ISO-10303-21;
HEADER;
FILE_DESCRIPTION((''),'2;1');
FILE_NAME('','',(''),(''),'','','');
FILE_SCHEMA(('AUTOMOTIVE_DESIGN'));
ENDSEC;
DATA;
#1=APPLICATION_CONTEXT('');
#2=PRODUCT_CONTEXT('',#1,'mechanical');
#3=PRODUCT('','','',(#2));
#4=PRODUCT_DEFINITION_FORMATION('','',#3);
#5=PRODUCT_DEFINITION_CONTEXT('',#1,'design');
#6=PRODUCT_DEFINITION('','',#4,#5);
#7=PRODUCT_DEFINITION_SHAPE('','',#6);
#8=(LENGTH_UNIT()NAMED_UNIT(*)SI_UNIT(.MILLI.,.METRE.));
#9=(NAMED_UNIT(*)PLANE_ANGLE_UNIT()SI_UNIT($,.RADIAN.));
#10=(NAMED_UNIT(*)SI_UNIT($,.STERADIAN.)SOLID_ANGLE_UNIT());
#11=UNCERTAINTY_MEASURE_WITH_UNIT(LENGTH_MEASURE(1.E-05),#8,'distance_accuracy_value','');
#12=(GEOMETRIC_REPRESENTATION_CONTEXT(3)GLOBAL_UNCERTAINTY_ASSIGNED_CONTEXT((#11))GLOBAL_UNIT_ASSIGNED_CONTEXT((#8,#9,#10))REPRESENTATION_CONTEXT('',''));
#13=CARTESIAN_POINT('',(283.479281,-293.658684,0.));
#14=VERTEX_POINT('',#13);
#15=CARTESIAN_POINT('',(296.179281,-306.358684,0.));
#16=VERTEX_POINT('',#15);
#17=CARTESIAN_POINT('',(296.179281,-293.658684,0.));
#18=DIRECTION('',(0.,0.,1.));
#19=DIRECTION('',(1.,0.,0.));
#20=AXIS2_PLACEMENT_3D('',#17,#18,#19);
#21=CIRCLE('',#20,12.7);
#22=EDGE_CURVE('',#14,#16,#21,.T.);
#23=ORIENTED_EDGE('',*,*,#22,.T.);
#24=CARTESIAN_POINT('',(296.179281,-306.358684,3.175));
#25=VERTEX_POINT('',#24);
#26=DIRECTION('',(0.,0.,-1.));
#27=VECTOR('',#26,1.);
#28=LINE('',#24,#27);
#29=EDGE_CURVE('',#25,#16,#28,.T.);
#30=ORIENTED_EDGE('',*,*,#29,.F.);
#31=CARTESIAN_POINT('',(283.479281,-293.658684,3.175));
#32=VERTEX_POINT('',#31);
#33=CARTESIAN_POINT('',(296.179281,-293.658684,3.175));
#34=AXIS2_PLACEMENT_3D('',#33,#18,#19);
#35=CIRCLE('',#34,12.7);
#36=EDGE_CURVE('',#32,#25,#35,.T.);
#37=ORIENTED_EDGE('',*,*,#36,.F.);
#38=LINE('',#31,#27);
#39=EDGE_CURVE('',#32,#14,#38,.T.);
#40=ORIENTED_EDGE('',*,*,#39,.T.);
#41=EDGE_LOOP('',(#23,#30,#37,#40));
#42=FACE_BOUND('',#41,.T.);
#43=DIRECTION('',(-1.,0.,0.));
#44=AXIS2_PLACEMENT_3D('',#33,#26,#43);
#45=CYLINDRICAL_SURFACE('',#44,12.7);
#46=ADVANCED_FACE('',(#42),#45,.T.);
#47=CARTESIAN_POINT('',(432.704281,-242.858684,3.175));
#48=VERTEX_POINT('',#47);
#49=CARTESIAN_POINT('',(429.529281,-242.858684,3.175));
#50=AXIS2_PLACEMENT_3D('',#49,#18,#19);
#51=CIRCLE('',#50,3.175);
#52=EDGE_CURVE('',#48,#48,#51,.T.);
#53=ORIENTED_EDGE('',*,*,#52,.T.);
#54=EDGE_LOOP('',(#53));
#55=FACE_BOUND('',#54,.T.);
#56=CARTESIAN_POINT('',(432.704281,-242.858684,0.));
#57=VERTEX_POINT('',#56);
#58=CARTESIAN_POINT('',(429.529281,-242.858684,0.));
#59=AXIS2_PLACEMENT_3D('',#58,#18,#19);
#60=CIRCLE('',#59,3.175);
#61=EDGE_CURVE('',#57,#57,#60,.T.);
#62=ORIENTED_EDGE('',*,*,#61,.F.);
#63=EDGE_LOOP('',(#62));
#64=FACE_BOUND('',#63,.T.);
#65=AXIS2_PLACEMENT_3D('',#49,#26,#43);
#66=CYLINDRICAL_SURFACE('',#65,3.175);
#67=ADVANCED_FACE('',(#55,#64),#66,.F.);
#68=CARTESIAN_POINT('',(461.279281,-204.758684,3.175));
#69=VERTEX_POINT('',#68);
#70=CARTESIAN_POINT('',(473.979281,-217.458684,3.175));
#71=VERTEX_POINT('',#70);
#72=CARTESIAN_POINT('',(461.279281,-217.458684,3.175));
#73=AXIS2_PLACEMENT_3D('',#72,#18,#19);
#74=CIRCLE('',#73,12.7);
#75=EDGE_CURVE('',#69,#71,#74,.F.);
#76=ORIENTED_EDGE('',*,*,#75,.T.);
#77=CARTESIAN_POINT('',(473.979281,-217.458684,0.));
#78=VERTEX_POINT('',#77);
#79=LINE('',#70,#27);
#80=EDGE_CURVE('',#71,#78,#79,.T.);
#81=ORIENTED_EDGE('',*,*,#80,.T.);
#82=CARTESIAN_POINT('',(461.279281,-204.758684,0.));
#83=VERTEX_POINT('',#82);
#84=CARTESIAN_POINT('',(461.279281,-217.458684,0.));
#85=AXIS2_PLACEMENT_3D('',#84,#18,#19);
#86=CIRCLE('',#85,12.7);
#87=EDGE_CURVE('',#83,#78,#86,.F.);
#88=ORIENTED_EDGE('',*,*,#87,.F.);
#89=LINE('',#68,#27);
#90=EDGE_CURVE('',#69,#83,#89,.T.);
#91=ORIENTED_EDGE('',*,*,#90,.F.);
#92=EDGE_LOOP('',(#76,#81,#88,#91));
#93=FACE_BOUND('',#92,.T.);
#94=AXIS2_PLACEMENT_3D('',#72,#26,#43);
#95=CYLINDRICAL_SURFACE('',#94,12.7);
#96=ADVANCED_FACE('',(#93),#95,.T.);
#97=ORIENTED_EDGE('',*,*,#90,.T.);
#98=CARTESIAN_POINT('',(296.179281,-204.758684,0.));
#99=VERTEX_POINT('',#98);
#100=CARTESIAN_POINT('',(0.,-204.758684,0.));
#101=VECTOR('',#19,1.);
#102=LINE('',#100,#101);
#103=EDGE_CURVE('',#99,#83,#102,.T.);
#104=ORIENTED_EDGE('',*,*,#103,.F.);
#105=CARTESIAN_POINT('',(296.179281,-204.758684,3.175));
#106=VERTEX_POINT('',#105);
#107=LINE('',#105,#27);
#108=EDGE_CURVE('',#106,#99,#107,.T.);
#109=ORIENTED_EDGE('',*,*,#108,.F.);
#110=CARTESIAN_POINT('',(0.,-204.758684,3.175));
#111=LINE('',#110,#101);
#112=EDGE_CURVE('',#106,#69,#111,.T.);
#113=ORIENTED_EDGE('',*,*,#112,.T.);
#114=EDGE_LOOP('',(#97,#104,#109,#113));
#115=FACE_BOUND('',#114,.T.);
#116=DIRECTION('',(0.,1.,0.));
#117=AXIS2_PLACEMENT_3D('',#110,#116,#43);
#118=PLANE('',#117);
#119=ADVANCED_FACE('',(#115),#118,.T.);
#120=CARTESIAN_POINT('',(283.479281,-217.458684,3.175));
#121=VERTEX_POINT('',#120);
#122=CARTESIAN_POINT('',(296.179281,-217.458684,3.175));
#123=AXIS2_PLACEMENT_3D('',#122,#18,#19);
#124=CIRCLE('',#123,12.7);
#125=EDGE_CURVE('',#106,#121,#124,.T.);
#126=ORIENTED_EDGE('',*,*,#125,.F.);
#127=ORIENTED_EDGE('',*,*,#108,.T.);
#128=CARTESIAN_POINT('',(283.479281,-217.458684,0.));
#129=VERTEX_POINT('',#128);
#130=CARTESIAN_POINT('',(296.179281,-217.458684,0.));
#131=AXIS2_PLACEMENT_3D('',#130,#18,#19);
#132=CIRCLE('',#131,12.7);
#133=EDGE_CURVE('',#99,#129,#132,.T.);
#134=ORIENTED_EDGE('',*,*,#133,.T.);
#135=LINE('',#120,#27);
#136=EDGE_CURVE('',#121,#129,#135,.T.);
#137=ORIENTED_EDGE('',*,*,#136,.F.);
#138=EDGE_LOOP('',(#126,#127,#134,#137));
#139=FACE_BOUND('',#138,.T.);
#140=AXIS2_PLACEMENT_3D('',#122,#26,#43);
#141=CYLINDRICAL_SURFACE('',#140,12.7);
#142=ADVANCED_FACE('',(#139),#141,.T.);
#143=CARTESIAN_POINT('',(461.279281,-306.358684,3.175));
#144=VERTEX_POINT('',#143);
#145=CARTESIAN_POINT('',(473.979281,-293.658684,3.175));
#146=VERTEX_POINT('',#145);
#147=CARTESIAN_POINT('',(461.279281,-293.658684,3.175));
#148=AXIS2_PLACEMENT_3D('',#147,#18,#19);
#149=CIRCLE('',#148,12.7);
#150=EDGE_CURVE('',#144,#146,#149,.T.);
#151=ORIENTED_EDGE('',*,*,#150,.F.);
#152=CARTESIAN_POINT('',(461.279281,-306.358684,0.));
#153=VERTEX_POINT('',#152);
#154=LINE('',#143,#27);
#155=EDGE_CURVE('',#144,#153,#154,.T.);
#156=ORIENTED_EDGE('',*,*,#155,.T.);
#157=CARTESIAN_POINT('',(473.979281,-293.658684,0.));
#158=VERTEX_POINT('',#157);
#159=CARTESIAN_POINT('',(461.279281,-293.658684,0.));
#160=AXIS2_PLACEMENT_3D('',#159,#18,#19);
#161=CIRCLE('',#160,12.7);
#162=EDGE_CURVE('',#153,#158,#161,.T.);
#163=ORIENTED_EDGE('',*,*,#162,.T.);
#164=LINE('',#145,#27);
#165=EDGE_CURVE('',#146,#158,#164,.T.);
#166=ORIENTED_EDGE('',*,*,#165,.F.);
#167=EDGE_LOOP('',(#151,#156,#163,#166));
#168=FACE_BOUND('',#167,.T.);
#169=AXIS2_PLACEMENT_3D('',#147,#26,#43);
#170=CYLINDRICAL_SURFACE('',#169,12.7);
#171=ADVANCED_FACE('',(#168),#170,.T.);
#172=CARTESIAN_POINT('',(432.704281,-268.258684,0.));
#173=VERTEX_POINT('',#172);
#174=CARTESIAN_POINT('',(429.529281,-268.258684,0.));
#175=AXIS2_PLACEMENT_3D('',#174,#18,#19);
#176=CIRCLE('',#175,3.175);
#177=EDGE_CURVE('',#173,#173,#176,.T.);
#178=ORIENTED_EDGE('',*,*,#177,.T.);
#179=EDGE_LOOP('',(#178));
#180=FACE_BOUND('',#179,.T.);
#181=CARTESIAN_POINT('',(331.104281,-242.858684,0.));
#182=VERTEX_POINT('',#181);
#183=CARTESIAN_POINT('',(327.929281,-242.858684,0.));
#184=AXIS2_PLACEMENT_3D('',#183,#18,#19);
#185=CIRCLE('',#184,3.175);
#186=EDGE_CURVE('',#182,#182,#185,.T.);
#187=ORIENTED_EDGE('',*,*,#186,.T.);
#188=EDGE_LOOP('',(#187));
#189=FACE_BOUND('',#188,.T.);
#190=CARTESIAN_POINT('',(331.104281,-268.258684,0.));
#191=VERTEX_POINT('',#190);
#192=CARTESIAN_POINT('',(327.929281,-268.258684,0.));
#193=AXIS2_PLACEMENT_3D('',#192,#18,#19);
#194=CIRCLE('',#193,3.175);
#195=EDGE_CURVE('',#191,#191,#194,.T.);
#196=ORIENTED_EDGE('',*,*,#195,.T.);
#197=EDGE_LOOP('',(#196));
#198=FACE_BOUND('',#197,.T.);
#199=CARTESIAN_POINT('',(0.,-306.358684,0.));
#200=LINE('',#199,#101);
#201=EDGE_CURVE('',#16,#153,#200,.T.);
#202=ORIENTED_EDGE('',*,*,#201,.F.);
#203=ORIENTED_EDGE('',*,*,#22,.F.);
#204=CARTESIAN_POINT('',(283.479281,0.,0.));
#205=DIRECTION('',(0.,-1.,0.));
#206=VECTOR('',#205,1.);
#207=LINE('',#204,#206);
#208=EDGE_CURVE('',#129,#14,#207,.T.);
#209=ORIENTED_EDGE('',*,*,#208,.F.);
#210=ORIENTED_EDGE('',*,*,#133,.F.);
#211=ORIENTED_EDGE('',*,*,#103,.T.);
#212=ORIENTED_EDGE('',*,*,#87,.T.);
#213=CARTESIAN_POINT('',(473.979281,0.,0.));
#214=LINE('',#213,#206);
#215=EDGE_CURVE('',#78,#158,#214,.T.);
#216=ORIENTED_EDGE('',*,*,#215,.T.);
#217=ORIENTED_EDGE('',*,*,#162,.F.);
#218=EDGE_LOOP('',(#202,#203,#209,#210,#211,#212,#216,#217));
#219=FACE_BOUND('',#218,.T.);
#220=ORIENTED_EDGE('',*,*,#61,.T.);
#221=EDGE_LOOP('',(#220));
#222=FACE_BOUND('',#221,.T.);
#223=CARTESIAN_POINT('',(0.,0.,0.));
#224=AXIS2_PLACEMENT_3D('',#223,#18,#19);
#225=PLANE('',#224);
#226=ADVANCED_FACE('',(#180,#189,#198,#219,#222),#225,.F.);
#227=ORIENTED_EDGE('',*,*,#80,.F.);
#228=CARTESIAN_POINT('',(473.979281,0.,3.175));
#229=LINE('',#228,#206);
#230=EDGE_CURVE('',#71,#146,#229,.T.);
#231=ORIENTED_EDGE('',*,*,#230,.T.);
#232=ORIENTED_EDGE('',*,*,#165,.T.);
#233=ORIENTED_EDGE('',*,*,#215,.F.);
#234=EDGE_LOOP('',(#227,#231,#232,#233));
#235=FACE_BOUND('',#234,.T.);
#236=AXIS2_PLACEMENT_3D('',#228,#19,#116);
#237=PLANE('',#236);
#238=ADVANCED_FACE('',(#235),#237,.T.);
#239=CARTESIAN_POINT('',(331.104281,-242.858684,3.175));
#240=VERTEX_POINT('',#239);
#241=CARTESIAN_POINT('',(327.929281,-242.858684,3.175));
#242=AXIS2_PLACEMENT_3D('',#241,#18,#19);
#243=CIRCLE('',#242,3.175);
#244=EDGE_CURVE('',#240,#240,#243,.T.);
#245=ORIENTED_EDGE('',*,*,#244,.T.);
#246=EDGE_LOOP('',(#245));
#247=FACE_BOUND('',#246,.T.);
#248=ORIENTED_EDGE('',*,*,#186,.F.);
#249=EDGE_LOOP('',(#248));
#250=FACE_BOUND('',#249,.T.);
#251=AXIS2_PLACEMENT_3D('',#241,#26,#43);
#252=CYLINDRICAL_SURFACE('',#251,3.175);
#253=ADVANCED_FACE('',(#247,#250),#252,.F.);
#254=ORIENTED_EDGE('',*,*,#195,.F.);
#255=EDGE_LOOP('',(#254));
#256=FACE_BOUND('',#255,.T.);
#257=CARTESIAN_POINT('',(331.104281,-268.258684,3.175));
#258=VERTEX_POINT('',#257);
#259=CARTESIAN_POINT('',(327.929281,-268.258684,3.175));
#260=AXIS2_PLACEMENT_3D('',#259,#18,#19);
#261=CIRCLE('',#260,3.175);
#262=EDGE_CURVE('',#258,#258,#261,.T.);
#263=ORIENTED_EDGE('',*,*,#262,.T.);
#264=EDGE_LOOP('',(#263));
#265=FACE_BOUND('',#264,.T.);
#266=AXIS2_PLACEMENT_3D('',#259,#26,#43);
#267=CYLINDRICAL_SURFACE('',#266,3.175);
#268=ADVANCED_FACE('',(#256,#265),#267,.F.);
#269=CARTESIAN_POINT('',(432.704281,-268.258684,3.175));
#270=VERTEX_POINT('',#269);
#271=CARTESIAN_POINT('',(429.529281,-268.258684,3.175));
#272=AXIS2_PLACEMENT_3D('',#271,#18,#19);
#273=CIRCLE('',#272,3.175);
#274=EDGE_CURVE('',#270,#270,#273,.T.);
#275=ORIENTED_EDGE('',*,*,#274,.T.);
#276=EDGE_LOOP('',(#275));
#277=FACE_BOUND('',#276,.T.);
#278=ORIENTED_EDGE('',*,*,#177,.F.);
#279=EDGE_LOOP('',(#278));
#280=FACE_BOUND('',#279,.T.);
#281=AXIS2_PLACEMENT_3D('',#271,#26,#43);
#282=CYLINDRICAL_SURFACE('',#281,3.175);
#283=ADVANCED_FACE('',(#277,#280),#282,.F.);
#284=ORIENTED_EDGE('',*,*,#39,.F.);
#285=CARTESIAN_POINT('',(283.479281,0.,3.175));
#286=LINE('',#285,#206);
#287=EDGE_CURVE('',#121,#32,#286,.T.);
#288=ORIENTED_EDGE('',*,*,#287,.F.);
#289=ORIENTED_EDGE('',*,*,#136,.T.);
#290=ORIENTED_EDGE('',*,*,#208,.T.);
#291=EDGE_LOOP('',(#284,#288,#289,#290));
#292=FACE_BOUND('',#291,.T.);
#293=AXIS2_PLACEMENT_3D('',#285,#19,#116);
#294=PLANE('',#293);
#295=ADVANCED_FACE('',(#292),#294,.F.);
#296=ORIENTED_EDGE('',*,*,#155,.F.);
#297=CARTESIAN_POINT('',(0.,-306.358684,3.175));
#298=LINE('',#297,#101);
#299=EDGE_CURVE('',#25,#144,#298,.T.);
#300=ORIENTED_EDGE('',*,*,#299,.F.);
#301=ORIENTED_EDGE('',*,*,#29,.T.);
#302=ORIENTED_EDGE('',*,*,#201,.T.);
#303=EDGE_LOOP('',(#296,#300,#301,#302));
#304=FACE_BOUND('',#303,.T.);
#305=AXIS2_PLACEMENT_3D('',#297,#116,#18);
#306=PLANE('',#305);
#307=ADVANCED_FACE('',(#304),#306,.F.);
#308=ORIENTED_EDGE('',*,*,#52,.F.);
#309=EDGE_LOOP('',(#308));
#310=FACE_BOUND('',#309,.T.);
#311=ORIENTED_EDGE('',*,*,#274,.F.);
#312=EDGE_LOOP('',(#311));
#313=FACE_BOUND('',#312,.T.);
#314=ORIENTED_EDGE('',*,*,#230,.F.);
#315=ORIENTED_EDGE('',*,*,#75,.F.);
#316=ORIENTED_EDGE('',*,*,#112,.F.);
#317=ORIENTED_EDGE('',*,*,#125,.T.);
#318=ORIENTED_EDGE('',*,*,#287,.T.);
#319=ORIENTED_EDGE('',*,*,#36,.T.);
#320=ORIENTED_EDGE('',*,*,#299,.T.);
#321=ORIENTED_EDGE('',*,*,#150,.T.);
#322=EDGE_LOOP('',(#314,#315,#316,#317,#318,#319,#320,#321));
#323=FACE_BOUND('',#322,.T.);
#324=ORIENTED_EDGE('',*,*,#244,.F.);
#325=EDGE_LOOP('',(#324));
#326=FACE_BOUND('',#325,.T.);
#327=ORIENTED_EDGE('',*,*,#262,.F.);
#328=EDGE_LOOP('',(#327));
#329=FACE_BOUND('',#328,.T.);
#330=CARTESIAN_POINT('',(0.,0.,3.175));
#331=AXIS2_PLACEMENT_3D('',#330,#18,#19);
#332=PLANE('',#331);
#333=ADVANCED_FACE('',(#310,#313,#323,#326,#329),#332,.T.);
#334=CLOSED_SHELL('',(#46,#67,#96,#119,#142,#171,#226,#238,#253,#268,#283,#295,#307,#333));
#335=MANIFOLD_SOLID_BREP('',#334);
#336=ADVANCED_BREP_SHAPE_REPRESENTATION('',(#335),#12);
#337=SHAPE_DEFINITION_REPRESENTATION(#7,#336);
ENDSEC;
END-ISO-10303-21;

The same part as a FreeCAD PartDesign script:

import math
import FreeCAD as App
import Part
import Sketcher

V = App.Vector
Q = App.Units.Quantity

doc = App.newDocument("Part")
body = doc.addObject("PartDesign::Body", "Body")

# Sketch on XY plane
sketch1 = body.newObject("Sketcher::SketchObject", "Sketch")
sketch1.AttachmentSupport = (doc.getObject("XY_Plane"), [""])
sketch1.MapMode = "FlatFace"
sketch1.addGeometry([
    Part.LineSegment(V(461.3, -204.8, 0), V(296.2, -204.8, 0)),  # 0
    Part.ArcOfCircle(Part.Circle(V(296.2, -217.5, 0), V(0, 0, 1), 12.7), math.radians(90), math.radians(180)),  # 1
    Part.LineSegment(V(283.5, -217.5, 0), V(283.5, -293.7, 0)),  # 2
    Part.ArcOfCircle(Part.Circle(V(296.2, -293.7, 0), V(0, 0, 1), 12.7), math.radians(180), math.radians(270)),  # 3
    Part.LineSegment(V(296.2, -306.4, 0), V(461.3, -306.4, 0)),  # 4
    Part.ArcOfCircle(Part.Circle(V(461.3, -293.7, 0), V(0, 0, 1), 12.7), math.radians(-90), math.radians(0)),  # 5
    Part.LineSegment(V(474, -293.7, 0), V(474, -217.5, 0)),  # 6
    Part.ArcOfCircle(Part.Circle(V(461.3, -217.5, 0), V(0, 0, 1), 12.7), math.radians(0), math.radians(90)),  # 7
    Part.Circle(V(429.5, -268.3, 0), V(0, 0, 1), 3.2),  # 8
    Part.Circle(V(327.9, -268.3, 0), V(0, 0, 1), 3.2),  # 9
    Part.Circle(V(429.5, -242.9, 0), V(0, 0, 1), 3.2),  # 10
    Part.Circle(V(327.9, -242.9, 0), V(0, 0, 1), 3.2),  # 11
], False)
sketch1.addConstraint([
    Sketcher.Constraint("Tangent", 0, 2, 1, 1),
    Sketcher.Constraint("Tangent", 1, 2, 2, 1),
    Sketcher.Constraint("Tangent", 2, 2, 3, 1),
    Sketcher.Constraint("Tangent", 3, 2, 4, 1),
    Sketcher.Constraint("Tangent", 4, 2, 5, 1),
    Sketcher.Constraint("Tangent", 5, 2, 6, 1),
    Sketcher.Constraint("Tangent", 6, 2, 7, 1),
    Sketcher.Constraint("Tangent", 7, 2, 0, 1),
    Sketcher.Constraint("Horizontal", 0),
    Sketcher.Constraint("Vertical", 2),
    Sketcher.Constraint("Horizontal", 4),
    Sketcher.Constraint("Vertical", 6),
    Sketcher.Constraint("Equal", 1, 3),
    Sketcher.Constraint("Equal", 3, 5),
    Sketcher.Constraint("Equal", 5, 7),
    Sketcher.Constraint("Equal", 8, 9),
    Sketcher.Constraint("Equal", 9, 10),
    Sketcher.Constraint("Equal", 10, 11),
    Sketcher.Constraint("Horizontal", 8, 3, 9, 3),
    Sketcher.Constraint("Horizontal", 10, 3, 11, 3),
    Sketcher.Constraint("Vertical", 8, 3, 10, 3),
    Sketcher.Constraint("Vertical", 9, 3, 11, 3),
    Sketcher.Constraint("Radius", 1, Q("0.5 in")),
    Sketcher.Constraint("Diameter", 8, Q("0.25 in")),
    Sketcher.Constraint("DistanceY", 2, 2, 2, 1, Q("3 in")),
    Sketcher.Constraint("DistanceX", 0, 2, 0, 1, Q("6.5 in")),
    Sketcher.Constraint("DistanceY", 5, 3, 8, 3, Q("1 in")),
    Sketcher.Constraint("DistanceX", 9, 3, 8, 3, Q("4 in")),
    Sketcher.Constraint("DistanceY", 8, 3, 10, 3, Q("1 in")),
    Sketcher.Constraint("DistanceX", 8, 3, 5, 3, Q("1.25 in")),
    Sketcher.Constraint("DistanceX", -1, 1, 1, 3, Q("296.179281 mm")),
    Sketcher.Constraint("DistanceY", 1, 3, -1, 1, Q("217.458684 mm")),
])
pad1 = body.newObject("PartDesign::Pad", "Pad")
pad1.Profile = sketch1
pad1.Length = Q("0.125 in")

doc.recompute()
